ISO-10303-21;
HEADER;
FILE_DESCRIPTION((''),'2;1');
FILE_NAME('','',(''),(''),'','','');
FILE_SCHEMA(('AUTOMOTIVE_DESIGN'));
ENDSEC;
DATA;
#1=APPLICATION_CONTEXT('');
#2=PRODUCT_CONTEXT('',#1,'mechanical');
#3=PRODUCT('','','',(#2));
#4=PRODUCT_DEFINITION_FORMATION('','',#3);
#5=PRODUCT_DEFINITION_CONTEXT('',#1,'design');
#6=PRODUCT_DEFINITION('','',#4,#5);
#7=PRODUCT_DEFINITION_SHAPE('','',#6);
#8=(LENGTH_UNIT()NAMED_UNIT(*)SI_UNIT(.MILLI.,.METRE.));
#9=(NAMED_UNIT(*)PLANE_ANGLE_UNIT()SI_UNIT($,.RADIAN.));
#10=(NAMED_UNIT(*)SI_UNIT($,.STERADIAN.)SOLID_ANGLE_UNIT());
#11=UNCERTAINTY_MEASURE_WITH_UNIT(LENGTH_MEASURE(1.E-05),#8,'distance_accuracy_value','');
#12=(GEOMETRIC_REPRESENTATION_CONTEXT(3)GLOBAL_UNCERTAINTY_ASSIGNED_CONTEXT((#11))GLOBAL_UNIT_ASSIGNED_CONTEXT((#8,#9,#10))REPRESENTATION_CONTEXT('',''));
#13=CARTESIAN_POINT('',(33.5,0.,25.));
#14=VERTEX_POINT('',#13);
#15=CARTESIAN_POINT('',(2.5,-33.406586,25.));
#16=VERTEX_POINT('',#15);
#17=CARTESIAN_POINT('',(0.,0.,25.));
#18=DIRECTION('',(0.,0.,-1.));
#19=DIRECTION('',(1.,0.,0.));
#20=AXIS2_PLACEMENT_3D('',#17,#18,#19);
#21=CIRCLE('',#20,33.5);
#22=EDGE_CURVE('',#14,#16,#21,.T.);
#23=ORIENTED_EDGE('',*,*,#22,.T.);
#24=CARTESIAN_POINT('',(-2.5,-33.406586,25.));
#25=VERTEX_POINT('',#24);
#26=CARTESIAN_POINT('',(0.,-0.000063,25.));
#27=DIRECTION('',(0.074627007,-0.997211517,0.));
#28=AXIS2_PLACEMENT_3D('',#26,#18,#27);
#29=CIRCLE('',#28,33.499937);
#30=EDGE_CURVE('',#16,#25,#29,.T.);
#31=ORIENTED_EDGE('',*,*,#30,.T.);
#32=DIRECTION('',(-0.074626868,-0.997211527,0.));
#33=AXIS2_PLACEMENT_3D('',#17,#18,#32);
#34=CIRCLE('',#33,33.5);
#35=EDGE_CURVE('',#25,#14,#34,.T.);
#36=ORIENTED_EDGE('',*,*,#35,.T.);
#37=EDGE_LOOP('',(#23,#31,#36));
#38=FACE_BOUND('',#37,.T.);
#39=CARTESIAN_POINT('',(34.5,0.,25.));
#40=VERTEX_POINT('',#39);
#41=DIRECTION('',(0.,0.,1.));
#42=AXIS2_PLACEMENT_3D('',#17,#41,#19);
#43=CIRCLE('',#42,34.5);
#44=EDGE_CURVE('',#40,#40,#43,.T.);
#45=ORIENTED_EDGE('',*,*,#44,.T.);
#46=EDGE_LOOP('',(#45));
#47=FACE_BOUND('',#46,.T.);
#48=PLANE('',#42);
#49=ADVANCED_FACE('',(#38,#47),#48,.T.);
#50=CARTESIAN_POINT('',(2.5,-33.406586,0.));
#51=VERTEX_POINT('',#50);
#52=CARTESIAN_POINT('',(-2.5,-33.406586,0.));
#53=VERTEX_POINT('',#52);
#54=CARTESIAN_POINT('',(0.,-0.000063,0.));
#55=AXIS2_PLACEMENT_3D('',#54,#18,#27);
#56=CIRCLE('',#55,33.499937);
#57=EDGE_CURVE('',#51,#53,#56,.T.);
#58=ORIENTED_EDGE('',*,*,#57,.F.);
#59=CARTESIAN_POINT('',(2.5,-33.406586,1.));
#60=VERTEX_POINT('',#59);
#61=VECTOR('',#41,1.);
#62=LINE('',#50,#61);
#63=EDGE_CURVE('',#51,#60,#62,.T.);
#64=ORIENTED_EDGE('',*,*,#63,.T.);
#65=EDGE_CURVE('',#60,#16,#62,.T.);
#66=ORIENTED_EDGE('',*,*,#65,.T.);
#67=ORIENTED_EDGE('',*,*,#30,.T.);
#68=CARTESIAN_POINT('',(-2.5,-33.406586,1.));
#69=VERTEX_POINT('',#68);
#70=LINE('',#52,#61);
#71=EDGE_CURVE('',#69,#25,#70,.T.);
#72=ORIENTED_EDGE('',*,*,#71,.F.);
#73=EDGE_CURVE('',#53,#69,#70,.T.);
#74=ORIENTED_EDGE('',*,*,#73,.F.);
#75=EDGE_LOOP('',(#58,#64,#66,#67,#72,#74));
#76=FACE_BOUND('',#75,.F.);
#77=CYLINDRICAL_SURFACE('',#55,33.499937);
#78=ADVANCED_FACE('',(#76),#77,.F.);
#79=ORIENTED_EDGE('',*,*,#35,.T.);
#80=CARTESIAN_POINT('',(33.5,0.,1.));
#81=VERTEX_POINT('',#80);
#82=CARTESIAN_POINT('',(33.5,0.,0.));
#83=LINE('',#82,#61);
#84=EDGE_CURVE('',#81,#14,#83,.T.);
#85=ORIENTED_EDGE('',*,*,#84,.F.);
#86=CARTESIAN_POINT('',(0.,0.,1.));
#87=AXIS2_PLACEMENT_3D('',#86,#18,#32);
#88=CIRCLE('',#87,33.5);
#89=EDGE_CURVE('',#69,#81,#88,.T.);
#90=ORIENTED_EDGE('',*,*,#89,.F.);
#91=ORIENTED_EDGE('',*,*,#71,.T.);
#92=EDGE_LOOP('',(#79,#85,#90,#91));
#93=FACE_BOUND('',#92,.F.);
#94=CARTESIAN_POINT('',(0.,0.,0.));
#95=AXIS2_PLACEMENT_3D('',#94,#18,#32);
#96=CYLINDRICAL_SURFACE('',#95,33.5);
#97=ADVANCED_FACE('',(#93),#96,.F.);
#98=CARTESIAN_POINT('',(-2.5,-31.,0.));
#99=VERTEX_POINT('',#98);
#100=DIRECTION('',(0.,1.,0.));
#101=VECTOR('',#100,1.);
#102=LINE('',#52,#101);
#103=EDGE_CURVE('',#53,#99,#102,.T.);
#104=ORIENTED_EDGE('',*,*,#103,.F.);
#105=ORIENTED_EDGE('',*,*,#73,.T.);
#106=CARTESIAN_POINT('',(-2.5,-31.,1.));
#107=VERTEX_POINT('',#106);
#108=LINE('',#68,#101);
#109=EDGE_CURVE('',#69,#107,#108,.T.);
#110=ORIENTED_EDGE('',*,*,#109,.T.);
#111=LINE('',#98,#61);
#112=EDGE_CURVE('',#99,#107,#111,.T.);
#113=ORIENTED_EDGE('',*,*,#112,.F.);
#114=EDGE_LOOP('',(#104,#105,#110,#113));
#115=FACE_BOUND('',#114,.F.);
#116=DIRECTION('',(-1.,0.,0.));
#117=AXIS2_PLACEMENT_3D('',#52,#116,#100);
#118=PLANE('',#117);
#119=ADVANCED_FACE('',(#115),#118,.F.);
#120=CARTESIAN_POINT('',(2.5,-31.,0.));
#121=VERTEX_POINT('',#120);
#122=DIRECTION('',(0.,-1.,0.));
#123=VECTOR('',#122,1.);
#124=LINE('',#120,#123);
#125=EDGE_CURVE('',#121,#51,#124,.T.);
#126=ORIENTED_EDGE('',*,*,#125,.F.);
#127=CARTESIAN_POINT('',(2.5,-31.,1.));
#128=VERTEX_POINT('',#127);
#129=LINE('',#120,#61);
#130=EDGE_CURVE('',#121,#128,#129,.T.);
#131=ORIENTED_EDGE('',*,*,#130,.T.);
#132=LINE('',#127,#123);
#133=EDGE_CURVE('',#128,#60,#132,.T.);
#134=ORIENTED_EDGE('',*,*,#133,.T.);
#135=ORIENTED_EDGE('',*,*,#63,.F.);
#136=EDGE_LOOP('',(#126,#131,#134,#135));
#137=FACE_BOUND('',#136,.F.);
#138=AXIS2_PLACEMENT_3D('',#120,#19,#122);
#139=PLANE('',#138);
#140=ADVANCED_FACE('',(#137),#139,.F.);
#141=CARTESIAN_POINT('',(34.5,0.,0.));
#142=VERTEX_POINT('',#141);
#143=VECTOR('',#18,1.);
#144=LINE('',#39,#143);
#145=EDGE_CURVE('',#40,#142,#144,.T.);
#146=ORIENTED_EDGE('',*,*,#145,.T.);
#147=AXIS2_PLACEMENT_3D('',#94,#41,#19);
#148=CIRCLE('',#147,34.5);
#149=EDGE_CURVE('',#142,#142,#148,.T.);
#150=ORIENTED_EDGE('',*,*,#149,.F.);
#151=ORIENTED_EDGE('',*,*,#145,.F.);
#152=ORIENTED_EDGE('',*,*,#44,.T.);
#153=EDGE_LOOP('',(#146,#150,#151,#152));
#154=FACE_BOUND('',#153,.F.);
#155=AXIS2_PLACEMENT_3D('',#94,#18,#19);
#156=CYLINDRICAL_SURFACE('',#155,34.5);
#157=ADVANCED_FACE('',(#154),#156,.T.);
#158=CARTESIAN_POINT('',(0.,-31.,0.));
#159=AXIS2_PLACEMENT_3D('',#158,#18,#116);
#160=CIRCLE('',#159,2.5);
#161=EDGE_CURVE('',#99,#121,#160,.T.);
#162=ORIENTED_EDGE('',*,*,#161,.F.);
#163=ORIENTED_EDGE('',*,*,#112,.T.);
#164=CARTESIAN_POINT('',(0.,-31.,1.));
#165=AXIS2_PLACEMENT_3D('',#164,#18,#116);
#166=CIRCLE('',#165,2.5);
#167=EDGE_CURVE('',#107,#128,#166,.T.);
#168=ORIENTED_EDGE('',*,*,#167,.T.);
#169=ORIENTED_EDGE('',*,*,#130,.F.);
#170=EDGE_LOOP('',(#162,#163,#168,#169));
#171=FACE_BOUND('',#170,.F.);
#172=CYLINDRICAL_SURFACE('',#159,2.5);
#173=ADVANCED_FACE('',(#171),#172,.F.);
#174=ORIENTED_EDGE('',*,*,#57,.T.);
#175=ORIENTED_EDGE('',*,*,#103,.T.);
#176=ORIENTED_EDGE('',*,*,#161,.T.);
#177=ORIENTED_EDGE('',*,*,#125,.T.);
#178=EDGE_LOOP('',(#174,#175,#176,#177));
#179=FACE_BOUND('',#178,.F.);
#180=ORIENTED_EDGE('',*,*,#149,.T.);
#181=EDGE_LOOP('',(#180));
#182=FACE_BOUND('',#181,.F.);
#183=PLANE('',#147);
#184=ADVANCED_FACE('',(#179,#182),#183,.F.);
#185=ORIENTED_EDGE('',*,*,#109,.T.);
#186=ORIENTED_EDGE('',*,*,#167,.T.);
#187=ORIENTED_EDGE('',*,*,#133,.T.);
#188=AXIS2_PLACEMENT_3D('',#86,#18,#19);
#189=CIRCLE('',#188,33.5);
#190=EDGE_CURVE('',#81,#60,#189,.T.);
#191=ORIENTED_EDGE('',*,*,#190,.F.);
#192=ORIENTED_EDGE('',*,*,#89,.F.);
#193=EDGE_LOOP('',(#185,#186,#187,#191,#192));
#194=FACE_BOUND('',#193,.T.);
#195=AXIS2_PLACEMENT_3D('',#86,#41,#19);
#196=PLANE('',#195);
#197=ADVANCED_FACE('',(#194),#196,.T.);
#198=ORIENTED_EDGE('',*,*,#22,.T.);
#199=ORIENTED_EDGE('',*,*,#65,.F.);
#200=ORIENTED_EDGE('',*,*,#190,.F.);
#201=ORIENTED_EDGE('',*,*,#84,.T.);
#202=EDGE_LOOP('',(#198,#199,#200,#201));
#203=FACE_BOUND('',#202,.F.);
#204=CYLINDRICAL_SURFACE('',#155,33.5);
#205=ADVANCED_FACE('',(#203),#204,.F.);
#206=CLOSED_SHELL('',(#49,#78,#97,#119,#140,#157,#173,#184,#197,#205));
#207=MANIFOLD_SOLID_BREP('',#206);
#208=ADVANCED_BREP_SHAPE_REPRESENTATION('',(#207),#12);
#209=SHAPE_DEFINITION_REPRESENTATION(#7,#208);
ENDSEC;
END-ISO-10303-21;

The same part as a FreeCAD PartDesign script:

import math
import FreeCAD as App
import Part
import Sketcher

V = App.Vector
Q = App.Units.Quantity

doc = App.newDocument("Part")
body = doc.addObject("PartDesign::Body", "Body")

sketch1 = body.newObject("Sketcher::SketchObject", "Sketch")
sketch1.AttachmentSupport = (doc.getObject("XY_Plane"), [""])
sketch1.MapMode = "FlatFace"
sketch1.addGeometry([
    Part.Circle(V(0, 0, 0), V(0, 0, 1), 34.5),
    Part.ArcOfCircle(Part.Circle(V(0, -0.000063, 0), V(0, 0, 1), 33.499937), math.radians(-94.279791), math.radians(-85.720209)),
    Part.LineSegment(V(-2.5, -33.406586, 0), V(-2.5, -31, 0)),
    Part.ArcOfCircle(Part.Circle(V(0, -31, 0), V(0, 0, 1), 2.5), math.radians(0), math.radians(180)),
    Part.LineSegment(V(2.5, -31, 0), V(2.5, -33.406586, 0)),
], False)
sketch1.addConstraint([
    Sketcher.Constraint("Coincident", 1, 1, 2, 1),
    Sketcher.Constraint("Tangent", 2, 2, 3, 2),
    Sketcher.Constraint("Tangent", 3, 1, 4, 1),
    Sketcher.Constraint("Coincident", 4, 2, 1, 2),
    Sketcher.Constraint("Vertical", 2),
    Sketcher.Constraint("Vertical", 4),
    Sketcher.Constraint("Coincident", 0, 3, -1, 1),
    Sketcher.Constraint("Symmetric", 1, 1, 4, 2, -2),
    Sketcher.Constraint("Diameter", 0, Q("69 mm")),
    Sketcher.Constraint("Radius", 3, Q("2.5 mm")),
    Sketcher.Constraint("DistanceY", 3, 3, -1, 1, Q("31 mm")),
    Sketcher.Constraint("Radius", 1, Q("33.499937 mm")),
    Sketcher.Constraint("DistanceY", 2, 1, 2, 2, Q("2.406586 mm")),
])
pad1 = body.newObject("PartDesign::Pad", "Pad")
pad1.Profile = sketch1
pad1.Length = 1

sketch2 = body.newObject("Sketcher::SketchObject", "Sketch001")
sketch2.AttachmentSupport = (doc.getObject("XY_Plane"), [""])
sketch2.MapMode = "FlatFace"
sketch2.addGeometry([
    Part.Circle(V(0, 0, 0), V(0, 0, 1), 34.5),
    Part.ArcOfCircle(Part.Circle(V(0, -0.000063, 0), V(0, 0, 1), 33.499937), math.radians(-94.279791), math.radians(-85.720209)),
    Part.ArcOfCircle(Part.Circle(V(0, 0, 0), V(0, 0, 1), 33.5), math.radians(0), math.radians(265.720217)),
    Part.ArcOfCircle(Part.Circle(V(0, 0, 0), V(0, 0, 1), 33.5), math.radians(-85.720217), math.radians(0)),
], False)
sketch2.addConstraint([
    Sketcher.Constraint("Coincident", 1, 1, 2, 2),
    Sketcher.Constraint("Coincident", 2, 1, 3, 2),
    Sketcher.Constraint("Coincident", 3, 1, 1, 2),
    Sketcher.Constraint("Coincident", 0, 3, -1, 1),
    Sketcher.Constraint("Coincident", 2, 3, -1, 1),
    Sketcher.Constraint("Coincident", 3, 3, -1, 1),
    Sketcher.Constraint("PointOnObject", 2, 1, -1),
    Sketcher.Constraint("Diameter", 0, Q("69 mm")),
    Sketcher.Constraint("Radius", 2, Q("33.5 mm")),
    Sketcher.Constraint("DistanceX", 1, 1, 2, 1, Q("36 mm")),
    Sketcher.Constraint("DistanceX", 1, 1, 3, 1, Q("5 mm")),
    Sketcher.Constraint("Radius", 1, Q("33.499937 mm")),
])
pad2 = body.newObject("PartDesign::Pad", "Pad001")
pad2.Profile = sketch2
pad2.Length = 25

doc.recompute()
